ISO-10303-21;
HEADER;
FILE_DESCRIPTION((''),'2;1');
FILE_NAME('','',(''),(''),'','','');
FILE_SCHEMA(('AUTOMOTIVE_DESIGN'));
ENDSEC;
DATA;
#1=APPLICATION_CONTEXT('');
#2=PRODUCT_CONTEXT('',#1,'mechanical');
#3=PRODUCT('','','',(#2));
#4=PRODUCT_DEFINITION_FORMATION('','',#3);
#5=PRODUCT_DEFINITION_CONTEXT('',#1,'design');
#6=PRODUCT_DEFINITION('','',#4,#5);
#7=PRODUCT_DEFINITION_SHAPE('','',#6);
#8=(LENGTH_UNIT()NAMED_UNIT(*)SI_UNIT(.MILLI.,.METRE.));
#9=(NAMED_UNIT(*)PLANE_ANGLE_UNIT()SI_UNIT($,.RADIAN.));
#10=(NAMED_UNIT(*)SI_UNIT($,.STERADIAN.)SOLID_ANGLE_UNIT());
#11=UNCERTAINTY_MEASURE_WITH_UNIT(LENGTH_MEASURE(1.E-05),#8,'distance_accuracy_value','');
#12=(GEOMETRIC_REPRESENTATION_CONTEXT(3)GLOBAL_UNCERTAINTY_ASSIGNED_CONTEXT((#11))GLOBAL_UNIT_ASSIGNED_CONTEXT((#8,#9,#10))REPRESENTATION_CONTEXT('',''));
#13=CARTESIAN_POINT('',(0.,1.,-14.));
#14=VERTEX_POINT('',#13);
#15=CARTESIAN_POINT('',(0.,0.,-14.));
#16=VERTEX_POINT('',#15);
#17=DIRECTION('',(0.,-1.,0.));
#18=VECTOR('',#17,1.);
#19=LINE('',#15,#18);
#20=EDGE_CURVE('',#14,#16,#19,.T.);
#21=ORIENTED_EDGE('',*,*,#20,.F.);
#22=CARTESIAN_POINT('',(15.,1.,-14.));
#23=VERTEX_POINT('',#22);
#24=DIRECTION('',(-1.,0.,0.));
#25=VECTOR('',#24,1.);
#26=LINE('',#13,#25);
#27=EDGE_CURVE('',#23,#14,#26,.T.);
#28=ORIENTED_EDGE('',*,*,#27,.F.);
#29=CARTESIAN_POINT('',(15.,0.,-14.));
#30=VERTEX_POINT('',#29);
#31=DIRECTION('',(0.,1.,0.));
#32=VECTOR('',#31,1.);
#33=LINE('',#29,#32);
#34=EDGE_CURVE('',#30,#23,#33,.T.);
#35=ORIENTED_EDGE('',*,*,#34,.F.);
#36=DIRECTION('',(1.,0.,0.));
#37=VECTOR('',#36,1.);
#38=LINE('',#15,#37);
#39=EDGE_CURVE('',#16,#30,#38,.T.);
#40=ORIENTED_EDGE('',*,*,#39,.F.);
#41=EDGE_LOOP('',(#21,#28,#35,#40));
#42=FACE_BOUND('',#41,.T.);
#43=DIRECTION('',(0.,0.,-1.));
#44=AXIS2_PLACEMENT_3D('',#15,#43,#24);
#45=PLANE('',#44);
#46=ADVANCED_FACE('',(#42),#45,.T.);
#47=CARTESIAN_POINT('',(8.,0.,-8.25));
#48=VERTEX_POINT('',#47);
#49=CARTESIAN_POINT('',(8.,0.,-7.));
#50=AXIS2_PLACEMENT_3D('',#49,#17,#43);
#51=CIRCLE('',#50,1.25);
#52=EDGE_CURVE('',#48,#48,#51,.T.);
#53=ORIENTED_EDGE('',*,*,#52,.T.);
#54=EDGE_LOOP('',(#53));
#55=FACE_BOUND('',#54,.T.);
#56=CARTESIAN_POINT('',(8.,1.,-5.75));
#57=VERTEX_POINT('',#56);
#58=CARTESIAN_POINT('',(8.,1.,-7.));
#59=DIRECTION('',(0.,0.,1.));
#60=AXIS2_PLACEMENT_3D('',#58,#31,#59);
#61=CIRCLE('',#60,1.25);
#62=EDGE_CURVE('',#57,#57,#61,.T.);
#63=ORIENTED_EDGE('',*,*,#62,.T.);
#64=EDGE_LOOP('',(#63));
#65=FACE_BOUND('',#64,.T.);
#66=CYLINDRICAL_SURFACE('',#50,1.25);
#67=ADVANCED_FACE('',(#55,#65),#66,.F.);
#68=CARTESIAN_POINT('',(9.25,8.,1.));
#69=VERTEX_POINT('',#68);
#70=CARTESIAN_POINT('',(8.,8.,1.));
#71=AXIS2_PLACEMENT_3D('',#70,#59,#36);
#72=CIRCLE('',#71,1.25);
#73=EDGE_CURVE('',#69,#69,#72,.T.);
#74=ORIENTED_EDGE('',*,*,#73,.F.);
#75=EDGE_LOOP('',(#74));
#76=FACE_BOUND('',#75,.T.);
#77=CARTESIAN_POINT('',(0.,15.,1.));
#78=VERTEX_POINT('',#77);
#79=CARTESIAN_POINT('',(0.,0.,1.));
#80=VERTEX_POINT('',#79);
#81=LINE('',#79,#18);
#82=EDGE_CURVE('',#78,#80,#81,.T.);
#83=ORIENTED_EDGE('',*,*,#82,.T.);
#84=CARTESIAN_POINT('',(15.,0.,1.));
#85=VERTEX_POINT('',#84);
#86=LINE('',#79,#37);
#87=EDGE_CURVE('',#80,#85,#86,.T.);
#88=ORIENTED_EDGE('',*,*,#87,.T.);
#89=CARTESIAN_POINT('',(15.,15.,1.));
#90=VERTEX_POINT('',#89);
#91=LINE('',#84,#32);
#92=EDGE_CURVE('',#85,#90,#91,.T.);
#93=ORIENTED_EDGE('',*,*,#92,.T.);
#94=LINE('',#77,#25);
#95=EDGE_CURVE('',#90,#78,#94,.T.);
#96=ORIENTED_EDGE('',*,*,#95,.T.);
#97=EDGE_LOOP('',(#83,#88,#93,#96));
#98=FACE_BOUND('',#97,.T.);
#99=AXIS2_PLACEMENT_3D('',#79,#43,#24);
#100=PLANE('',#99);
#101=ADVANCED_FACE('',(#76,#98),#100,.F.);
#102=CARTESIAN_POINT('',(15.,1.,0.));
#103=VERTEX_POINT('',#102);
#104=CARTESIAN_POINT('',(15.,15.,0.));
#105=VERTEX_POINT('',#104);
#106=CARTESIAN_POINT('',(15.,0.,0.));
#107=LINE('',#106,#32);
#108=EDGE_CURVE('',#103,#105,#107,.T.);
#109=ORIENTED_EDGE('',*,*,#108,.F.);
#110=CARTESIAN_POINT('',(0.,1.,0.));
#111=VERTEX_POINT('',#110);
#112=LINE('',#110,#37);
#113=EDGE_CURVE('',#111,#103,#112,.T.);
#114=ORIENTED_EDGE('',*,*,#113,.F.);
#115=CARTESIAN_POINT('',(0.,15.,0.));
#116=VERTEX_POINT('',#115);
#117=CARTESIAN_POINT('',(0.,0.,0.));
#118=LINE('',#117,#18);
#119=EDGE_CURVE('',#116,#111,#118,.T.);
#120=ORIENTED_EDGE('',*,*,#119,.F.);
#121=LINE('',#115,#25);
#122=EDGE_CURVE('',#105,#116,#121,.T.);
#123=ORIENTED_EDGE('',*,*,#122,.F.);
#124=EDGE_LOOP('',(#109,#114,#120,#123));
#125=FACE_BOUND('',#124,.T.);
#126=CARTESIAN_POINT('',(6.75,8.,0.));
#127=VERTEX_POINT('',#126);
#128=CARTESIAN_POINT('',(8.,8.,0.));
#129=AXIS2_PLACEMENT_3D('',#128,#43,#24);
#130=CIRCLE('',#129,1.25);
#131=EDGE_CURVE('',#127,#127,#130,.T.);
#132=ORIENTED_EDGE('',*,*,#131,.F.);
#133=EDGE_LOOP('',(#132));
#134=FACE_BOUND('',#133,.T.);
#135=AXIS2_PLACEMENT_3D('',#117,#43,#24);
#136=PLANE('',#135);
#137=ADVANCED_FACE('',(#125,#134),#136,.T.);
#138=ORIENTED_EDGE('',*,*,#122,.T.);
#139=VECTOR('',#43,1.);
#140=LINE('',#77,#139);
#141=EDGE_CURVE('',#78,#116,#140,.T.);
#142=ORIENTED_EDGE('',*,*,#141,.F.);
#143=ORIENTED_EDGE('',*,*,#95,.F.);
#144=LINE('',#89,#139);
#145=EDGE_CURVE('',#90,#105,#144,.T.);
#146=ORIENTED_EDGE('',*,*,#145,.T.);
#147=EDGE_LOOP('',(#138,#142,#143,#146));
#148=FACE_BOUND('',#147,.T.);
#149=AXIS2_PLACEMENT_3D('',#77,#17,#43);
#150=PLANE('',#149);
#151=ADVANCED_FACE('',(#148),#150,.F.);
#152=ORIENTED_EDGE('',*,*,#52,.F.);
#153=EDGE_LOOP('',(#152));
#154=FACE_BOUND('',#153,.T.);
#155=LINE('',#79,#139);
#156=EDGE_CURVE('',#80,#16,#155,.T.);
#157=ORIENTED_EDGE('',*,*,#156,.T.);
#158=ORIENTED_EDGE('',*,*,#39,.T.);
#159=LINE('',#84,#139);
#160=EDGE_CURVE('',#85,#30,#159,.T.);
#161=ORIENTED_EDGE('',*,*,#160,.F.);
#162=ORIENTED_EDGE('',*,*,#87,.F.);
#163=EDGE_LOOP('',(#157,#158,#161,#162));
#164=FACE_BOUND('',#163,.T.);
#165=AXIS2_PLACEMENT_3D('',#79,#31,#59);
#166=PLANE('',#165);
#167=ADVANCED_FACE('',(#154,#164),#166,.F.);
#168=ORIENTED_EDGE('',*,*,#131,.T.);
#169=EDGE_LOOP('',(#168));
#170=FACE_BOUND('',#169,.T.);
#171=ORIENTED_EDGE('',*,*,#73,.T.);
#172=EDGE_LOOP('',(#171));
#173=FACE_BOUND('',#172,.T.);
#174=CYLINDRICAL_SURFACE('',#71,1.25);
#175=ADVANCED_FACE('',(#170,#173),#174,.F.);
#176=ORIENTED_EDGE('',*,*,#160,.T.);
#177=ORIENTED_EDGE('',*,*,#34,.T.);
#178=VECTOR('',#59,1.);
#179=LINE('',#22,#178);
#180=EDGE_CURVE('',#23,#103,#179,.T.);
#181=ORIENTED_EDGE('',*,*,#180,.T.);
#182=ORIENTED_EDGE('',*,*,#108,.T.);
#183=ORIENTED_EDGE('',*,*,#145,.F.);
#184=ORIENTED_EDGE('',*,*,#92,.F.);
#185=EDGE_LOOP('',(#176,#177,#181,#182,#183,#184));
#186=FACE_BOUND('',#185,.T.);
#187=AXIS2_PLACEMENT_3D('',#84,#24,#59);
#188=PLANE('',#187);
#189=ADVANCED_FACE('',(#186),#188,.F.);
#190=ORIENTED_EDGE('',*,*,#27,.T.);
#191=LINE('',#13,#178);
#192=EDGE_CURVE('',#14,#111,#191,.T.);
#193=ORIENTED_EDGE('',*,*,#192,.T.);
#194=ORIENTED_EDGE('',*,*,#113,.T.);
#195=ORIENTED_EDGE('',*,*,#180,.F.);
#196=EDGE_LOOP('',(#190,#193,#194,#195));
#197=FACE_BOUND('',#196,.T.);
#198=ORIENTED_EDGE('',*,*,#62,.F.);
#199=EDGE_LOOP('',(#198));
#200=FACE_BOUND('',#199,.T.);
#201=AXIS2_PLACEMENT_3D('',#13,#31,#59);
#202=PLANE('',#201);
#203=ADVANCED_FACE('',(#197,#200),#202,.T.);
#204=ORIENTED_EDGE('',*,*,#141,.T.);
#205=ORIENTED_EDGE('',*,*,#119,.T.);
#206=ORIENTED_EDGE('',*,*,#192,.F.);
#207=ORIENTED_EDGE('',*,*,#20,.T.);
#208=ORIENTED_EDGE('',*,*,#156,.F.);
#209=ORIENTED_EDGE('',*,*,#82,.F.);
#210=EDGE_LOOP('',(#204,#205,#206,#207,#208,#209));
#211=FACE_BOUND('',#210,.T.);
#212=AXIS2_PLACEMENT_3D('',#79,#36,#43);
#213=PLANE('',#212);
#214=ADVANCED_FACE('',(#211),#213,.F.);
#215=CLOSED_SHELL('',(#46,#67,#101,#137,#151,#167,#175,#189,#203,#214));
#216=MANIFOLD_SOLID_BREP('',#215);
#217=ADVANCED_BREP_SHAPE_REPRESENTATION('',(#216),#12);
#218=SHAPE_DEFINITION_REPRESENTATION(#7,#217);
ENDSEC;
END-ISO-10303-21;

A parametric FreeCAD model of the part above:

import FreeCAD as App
import Part
import Sketcher

V = App.Vector

doc = App.newDocument("Part")
body = doc.addObject("PartDesign::Body", "Body")

# Sketch on XY plane
sketch1 = body.newObject("Sketcher::SketchObject", "Sketch")
sketch1.AttachmentSupport = (doc.getObject("XY_Plane"), [""])
sketch1.MapMode = "FlatFace"
sketch1.addGeometry([
    Part.LineSegment(V(0, 15, 0), V(0, 0, 0)),
    Part.LineSegment(V(0, 0, 0), V(15, 0, 0)),
    Part.LineSegment(V(15, 0, 0), V(15, 15, 0)),
    Part.LineSegment(V(15, 15, 0), V(0, 15, 0)),
], False)
sketch1.addConstraint([
    Sketcher.Constraint("Coincident", 0, 2, 1, 1),
    Sketcher.Constraint("Coincident", 1, 2, 2, 1),
    Sketcher.Constraint("Coincident", 2, 2, 3, 1),
    Sketcher.Constraint("Coincident", 3, 2, 0, 1),
    Sketcher.Constraint("Vertical", 0),
    Sketcher.Constraint("Horizontal", 1),
    Sketcher.Constraint("Vertical", 2),
    Sketcher.Constraint("Horizontal", 3),
    Sketcher.Constraint("Coincident", 0, 2, -1, 1),
    Sketcher.Constraint("Equal", 3, 0),
    Sketcher.Constraint("DistanceX", 1, 1, 1, 2, 15.0),
])
pad1 = body.newObject("PartDesign::Pad", "Pad")
pad1.Profile = sketch1
pad1.Length = 1

# Sketch on XY plane
sketch2 = body.newObject("Sketcher::SketchObject", "Sketch001")
sketch2.AttachmentSupport = (doc.getObject("XY_Plane"), [""])
sketch2.MapMode = "FlatFace"
sketch2.AttachmentOffset = App.Placement(V(0, 0, 1), App.Rotation())
sketch2.addGeometry([
    Part.LineSegment(V(0, 1, 0), V(0, 0, 0)),
    Part.LineSegment(V(0, 0, 0), V(15, 0, 0)),
    Part.LineSegment(V(15, 0, 0), V(15, 1, 0)),
    Part.LineSegment(V(15, 1, 0), V(0, 1, 0)),
], False)
sketch2.addConstraint([
    Sketcher.Constraint("Coincident", 0, 2, 1, 1),
    Sketcher.Constraint("Coincident", 1, 2, 2, 1),
    Sketcher.Constraint("Coincident", 2, 2, 3, 1),
    Sketcher.Constraint("Coincident", 3, 2, 0, 1),
    Sketcher.Constraint("Vertical", 0),
    Sketcher.Constraint("Horizontal", 1),
    Sketcher.Constraint("Vertical", 2),
    Sketcher.Constraint("Horizontal", 3),
    Sketcher.Constraint("Coincident", 0, 2, -1, 1),
    Sketcher.Constraint("DistanceX", 1, 1, 1, 2, 15.0),
    Sketcher.Constraint("DistanceY", 0, 2, 0, 1, 1.0),
])
pad2 = body.newObject("PartDesign::Pad", "Pad001")
pad2.Profile = sketch2
pad2.Length = 15
pad2.Reversed = True

# Sketch on XY plane
sketch3 = body.newObject("Sketcher::SketchObject", "Sketch002")
sketch3.AttachmentSupport = (doc.getObject("XY_Plane"), [""])
sketch3.MapMode = "FlatFace"
sketch3.AttachmentOffset = App.Placement(V(0, 0, 1), App.Rotation())
sketch3.addGeometry(Part.Circle(V(8, 8, 0), V(0, 0, 1), 1.2), False)
sketch3.addConstraint([
    Sketcher.Constraint("Diameter", 0, 2.5),
    Sketcher.Constraint("DistanceX", -1, 1, 0, 3, 8.0),
    Sketcher.Constraint("DistanceY", -1, 1, 0, 3, 8.0),
])
doc.recompute()
hole = body.newObject("PartDesign::Hole", "Hole")
hole.Profile = sketch3
hole.ThreadType = "None"
hole.Diameter = 2.5
hole.DepthType = "ThroughAll"

# Sketch on XZ plane
sketch4 = body.newObject("Sketcher::SketchObject", "Sketch003")
sketch4.AttachmentSupport = (doc.getObject("XZ_Plane"), [""])
sketch4.MapMode = "FlatFace"
sketch4.addGeometry(Part.Circle(V(8, -7, 0), V(0, 0, 1), 1.2), False)
sketch4.addConstraint([
    Sketcher.Constraint("Diameter", 0, 2.5),
    Sketcher.Constraint("DistanceX", -1, 1, 0, 3, 8.0),
    Sketcher.Constraint("DistanceY", 0, 3, -1, 1, 7.0),
])
doc.recompute()
hole2 = body.newObject("PartDesign::Hole", "Hole001")
hole2.Profile = sketch4
hole2.ThreadType = "None"
hole2.Diameter = 2.5
hole2.DepthType = "ThroughAll"

doc.recompute()
